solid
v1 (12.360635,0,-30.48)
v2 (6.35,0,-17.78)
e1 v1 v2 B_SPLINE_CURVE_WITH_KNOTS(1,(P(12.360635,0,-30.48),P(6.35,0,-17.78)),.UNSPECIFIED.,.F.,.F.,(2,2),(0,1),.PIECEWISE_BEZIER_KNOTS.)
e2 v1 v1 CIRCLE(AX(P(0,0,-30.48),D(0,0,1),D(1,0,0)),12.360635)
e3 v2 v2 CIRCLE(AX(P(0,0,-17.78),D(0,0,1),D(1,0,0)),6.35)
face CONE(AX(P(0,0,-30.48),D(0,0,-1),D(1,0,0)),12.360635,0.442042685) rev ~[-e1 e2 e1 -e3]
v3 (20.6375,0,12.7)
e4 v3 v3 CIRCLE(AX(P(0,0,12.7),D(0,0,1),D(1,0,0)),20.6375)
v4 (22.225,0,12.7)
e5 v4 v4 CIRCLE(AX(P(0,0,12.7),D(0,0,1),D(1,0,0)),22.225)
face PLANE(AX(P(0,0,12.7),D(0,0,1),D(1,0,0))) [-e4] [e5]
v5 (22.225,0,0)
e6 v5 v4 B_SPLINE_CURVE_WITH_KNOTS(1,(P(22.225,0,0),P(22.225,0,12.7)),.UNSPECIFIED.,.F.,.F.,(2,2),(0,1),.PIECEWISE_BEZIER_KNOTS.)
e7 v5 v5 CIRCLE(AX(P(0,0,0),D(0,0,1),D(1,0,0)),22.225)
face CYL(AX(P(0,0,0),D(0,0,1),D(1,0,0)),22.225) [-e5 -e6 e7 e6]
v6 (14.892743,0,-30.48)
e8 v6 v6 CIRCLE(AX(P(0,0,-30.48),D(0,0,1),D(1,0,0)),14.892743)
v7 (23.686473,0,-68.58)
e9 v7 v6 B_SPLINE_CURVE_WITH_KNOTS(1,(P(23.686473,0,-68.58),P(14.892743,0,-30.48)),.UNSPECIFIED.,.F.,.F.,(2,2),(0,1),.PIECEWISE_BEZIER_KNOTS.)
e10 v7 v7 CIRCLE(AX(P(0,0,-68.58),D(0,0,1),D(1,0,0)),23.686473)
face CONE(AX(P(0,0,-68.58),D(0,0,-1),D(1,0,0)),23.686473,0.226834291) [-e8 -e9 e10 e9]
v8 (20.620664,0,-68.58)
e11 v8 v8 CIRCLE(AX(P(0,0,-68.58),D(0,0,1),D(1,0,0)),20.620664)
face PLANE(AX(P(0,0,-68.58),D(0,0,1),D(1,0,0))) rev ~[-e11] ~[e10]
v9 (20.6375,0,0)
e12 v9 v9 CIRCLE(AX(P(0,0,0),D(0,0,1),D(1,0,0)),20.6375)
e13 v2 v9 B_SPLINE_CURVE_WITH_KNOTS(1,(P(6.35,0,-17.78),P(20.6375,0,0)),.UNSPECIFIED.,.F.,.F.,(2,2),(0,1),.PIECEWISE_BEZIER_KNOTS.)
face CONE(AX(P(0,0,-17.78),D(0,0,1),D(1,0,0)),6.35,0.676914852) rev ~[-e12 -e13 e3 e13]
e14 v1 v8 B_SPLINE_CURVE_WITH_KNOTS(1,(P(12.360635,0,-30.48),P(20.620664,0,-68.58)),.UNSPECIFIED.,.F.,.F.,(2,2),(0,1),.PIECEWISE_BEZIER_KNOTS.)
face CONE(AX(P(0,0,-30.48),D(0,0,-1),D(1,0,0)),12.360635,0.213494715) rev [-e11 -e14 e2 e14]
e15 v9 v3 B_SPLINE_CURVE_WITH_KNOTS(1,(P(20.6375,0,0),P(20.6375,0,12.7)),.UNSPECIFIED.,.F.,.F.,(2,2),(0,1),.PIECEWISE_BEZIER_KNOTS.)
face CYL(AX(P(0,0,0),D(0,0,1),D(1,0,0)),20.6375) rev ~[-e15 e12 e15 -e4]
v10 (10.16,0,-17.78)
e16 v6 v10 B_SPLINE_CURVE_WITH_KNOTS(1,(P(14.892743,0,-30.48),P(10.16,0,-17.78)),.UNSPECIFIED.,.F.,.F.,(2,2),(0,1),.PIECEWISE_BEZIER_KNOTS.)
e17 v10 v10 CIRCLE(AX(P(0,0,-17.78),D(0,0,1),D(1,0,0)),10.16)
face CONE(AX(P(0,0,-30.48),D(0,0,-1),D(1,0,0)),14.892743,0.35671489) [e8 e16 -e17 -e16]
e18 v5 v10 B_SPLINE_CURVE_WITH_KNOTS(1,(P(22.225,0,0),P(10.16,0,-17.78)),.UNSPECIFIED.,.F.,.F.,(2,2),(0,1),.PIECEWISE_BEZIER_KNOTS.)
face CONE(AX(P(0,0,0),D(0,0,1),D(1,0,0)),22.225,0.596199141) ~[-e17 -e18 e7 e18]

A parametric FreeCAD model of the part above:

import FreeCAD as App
import Part
import Sketcher
from FreeCAD import Vector
Q = App.Units.Quantity

doc = App.newDocument("Part")
params = doc.addObject("Spreadsheet::Sheet", "Params")
for row, (alias, value) in enumerate([
    ("sketch1_diameter", "1.75 in"),
    ("sketch2_diameter", "1.75 in"),
    ("sketch3_diameter", "1.625 in"),
    ("sketch4_diameter", "1.625 in"),
    ("sketch5_diameter", "1.75 in"),
    ("sketch6_diameter", "0.8 in"),
    ("sketch7_diameter", "0.5 in"),
    ("sketch8_diameter", "1.625 in"),
    ("sketch10_diameter", "0.8 in"),
    ("sketch12_diameter", "0.5 in"),
], start=1):
    params.set(f"A{row}", alias)
    params.set(f"B{row}", "=" + value)
    params.setAlias(f"B{row}", alias)

body = doc.addObject("PartDesign::Body", "Body")

# Sketch on XY plane
sketch1 = doc.addObject("Sketcher::SketchObject", "Sketch")
body.addObject(sketch1)
sketch1.AttachmentSupport = (doc.XY_Plane, [""])
sketch1.MapMode = "FlatFace"
sketch1.addGeometry(Part.Circle(Vector(0, 0, 0), Vector(0, 0, 1), 22), False)
sketch1.addConstraint([
    Sketcher.Constraint("Coincident", 0, 3, -1, 1),
    Sketcher.Constraint("Diameter", 0, Q("1.75 in")),
])
sketch1.setExpression("Constraints[1]", "Params.sketch1_diameter")

# Sketch on XY plane
sketch2 = doc.addObject("Sketcher::SketchObject", "Sketch001")
body.addObject(sketch2)
sketch2.AttachmentSupport = (doc.XY_Plane, [""])
sketch2.MapMode = "FlatFace"
sketch2.AttachmentOffset = App.Placement(Vector(0, 0, 0.5 * 25.4), App.Rotation())
sketch2.addGeometry(Part.Circle(Vector(0, 0, 0), Vector(0, 0, 1), 22), False)
sketch2.addConstraint([
    Sketcher.Constraint("Coincident", 0, 3, -1, 1),
    Sketcher.Constraint("Diameter", 0, Q("1.75 in")),
])
sketch2.setExpression("Constraints[1]", "Params.sketch2_diameter")

additiveloft = doc.addObject("PartDesign::AdditiveLoft", "AdditiveLoft")
body.addObject(additiveloft)
additiveloft.Profile = sketch1
additiveloft.Sections = [sketch2]

# Sketch on XY plane
sketch3 = doc.addObject("Sketcher::SketchObject", "Sketch002")
body.addObject(sketch3)
sketch3.AttachmentSupport = (doc.XY_Plane, [""])
sketch3.MapMode = "FlatFace"
sketch3.addGeometry(Part.Circle(Vector(0, 0, 0), Vector(0, 0, 1), 21), False)
sketch3.addConstraint([
    Sketcher.Constraint("Coincident", 0, 3, -1, 1),
    Sketcher.Constraint("Diameter", 0, Q("1.625 in")),
])
sketch3.setExpression("Constraints[1]", "Params.sketch3_diameter")

# Sketch on XY plane
sketch4 = doc.addObject("Sketcher::SketchObject", "Sketch003")
body.addObject(sketch4)
sketch4.AttachmentSupport = (doc.XY_Plane, [""])
sketch4.MapMode = "FlatFace"
sketch4.AttachmentOffset = App.Placement(Vector(0, 0, 0.5 * 25.4), App.Rotation())
sketch4.addGeometry(Part.Circle(Vector(0, 0, 0), Vector(0, 0, 1), 21), False)
sketch4.addConstraint([
    Sketcher.Constraint("Coincident", 0, 3, -1, 1),
    Sketcher.Constraint("Diameter", 0, Q("1.625 in")),
])
sketch4.setExpression("Constraints[1]", "Params.sketch4_diameter")

subtractiveloft = doc.addObject("PartDesign::SubtractiveLoft", "SubtractiveLoft")
body.addObject(subtractiveloft)
subtractiveloft.Profile = sketch3
subtractiveloft.Sections = [sketch4]

# Sketch on XY plane
sketch5 = doc.addObject("Sketcher::SketchObject", "Sketch004")
body.addObject(sketch5)
sketch5.AttachmentSupport = (doc.XY_Plane, [""])
sketch5.MapMode = "FlatFace"
sketch5.addGeometry(Part.Circle(Vector(0, 0, 0), Vector(0, 0, 1), 22), False)
sketch5.addConstraint([
    Sketcher.Constraint("Coincident", 0, 3, -1, 1),
    Sketcher.Constraint("Diameter", 0, Q("1.75 in")),
])
sketch5.setExpression("Constraints[1]", "Params.sketch5_diameter")

# Sketch on XY plane
sketch6 = doc.addObject("Sketcher::SketchObject", "Sketch005")
body.addObject(sketch6)
sketch6.AttachmentSupport = (doc.XY_Plane, [""])
sketch6.MapMode = "FlatFace"
sketch6.AttachmentOffset = App.Placement(Vector(0, 0, -0.7 * 25.4), App.Rotation())
sketch6.addGeometry(Part.Circle(Vector(0, 0, 0), Vector(0, 0, 1), 10), False)
sketch6.addConstraint([
    Sketcher.Constraint("Coincident", 0, 3, -1, 1),
    Sketcher.Constraint("Diameter", 0, Q("0.8 in")),
])
sketch6.setExpression("Constraints[1]", "Params.sketch6_diameter")

additiveloft2 = doc.addObject("PartDesign::AdditiveLoft", "AdditiveLoft001")
body.addObject(additiveloft2)
additiveloft2.Profile = sketch5
additiveloft2.Sections = [sketch6]

# Sketch on XY plane
sketch7 = doc.addObject("Sketcher::SketchObject", "Sketch006")
body.addObject(sketch7)
sketch7.AttachmentSupport = (doc.XY_Plane, [""])
sketch7.MapMode = "FlatFace"
sketch7.AttachmentOffset = App.Placement(Vector(0, 0, -0.7 * 25.4), App.Rotation())
sketch7.addGeometry(Part.Circle(Vector(0, 0, 0), Vector(0, 0, 1), 6), False)
sketch7.addConstraint([
    Sketcher.Constraint("Coincident", 0, 3, -1, 1),
    Sketcher.Constraint("Diameter", 0, Q("0.5 in")),
])
sketch7.setExpression("Constraints[1]", "Params.sketch7_diameter")

# Sketch on XY plane
sketch8 = doc.addObject("Sketcher::SketchObject", "Sketch007")
body.addObject(sketch8)
sketch8.AttachmentSupport = (doc.XY_Plane, [""])
sketch8.MapMode = "FlatFace"
sketch8.addGeometry(Part.Circle(Vector(0, 0, 0), Vector(0, 0, 1), 21), False)
sketch8.addConstraint([
    Sketcher.Constraint("Coincident", 0, 3, -1, 1),
    Sketcher.Constraint("Diameter", 0, Q("1.625 in")),
])
sketch8.setExpression("Constraints[1]", "Params.sketch8_diameter")

subtractiveloft2 = doc.addObject("PartDesign::SubtractiveLoft", "SubtractiveLoft001")
body.addObject(subtractiveloft2)
subtractiveloft2.Profile = sketch7
subtractiveloft2.Sections = [sketch8]

# Sketch on XY plane
sketch9 = doc.addObject("Sketcher::SketchObject", "Sketch008")
body.addObject(sketch9)
sketch9.AttachmentSupport = (doc.XY_Plane, [""])
sketch9.MapMode = "FlatFace"
sketch9.AttachmentOffset = App.Placement(Vector(0, 0, -1.2 * 25.4), App.Rotation())
sketch9.addGeometry(Part.Circle(Vector(0, 0, 0), Vector(0, 0, 1), 15), False)
sketch9.addConstraint([
    Sketcher.Constraint("Coincident", 0, 3, -1, 1),
    Sketcher.Constraint("Diameter", 0, Q("29.785486 mm")),
])

# Sketch on XY plane
sketch10 = doc.addObject("Sketcher::SketchObject", "Sketch009")
body.addObject(sketch10)
sketch10.AttachmentSupport = (doc.XY_Plane, [""])
sketch10.MapMode = "FlatFace"
sketch10.AttachmentOffset = App.Placement(Vector(0, 0, -0.7 * 25.4), App.Rotation())
sketch10.addGeometry(Part.Circle(Vector(0, 0, 0), Vector(0, 0, 1), 10), False)
sketch10.addConstraint([
    Sketcher.Constraint("Coincident", 0, 3, -1, 1),
    Sketcher.Constraint("Diameter", 0, Q("0.8 in")),
])
sketch10.setExpression("Constraints[1]", "Params.sketch10_diameter")

additiveloft3 = doc.addObject("PartDesign::AdditiveLoft", "AdditiveLoft002")
body.addObject(additiveloft3)
additiveloft3.Profile = sketch9
additiveloft3.Sections = [sketch10]

# Sketch on XY plane
sketch11 = doc.addObject("Sketcher::SketchObject", "Sketch010")
body.addObject(sketch11)
sketch11.AttachmentSupport = (doc.XY_Plane, [""])
sketch11.MapMode = "FlatFace"
sketch11.AttachmentOffset = App.Placement(Vector(0, 0, -1.2 * 25.4), App.Rotation())
sketch11.addGeometry(Part.Circle(Vector(0, 0, 0), Vector(0, 0, 1), 12), False)
sketch11.addConstraint([
    Sketcher.Constraint("Coincident", 0, 3, -1, 1),
    Sketcher.Constraint("Diameter", 0, Q("24.72127 mm")),
])

# Sketch on XY plane
sketch12 = doc.addObject("Sketcher::SketchObject", "Sketch011")
body.addObject(sketch12)
sketch12.AttachmentSupport = (doc.XY_Plane, [""])
sketch12.MapMode = "FlatFace"
sketch12.AttachmentOffset = App.Placement(Vector(0, 0, -0.7 * 25.4), App.Rotation())
sketch12.addGeometry(Part.Circle(Vector(0, 0, 0), Vector(0, 0, 1), 6), False)
sketch12.addConstraint([
    Sketcher.Constraint("Coincident", 0, 3, -1, 1),
    Sketcher.Constraint("Diameter", 0, Q("0.5 in")),
])
sketch12.setExpression("Constraints[1]", "Params.sketch12_diameter")

subtractiveloft3 = doc.addObject("PartDesign::SubtractiveLoft", "SubtractiveLoft002")
body.addObject(subtractiveloft3)
subtractiveloft3.Profile = sketch11
subtractiveloft3.Sections = [sketch12]

# Sketch on XY plane
sketch13 = doc.addObject("Sketcher::SketchObject", "Sketch012")
body.addObject(sketch13)
sketch13.AttachmentSupport = (doc.XY_Plane, [""])
sketch13.MapMode = "FlatFace"
sketch13.AttachmentOffset = App.Placement(Vector(0, 0, -2.7 * 25.4), App.Rotation())
sketch13.addGeometry(Part.Circle(Vector(0, 0, 0), Vector(0, 0, 1), 24), False)
sketch13.addConstraint([
    Sketcher.Constraint("Coincident", 0, 3, -1, 1),
    Sketcher.Constraint("Diameter", 0, Q("47.372946 mm")),
])

# Sketch on XY plane
sketch14 = doc.addObject("Sketcher::SketchObject", "Sketch013")
body.addObject(sketch14)
sketch14.AttachmentSupport = (doc.XY_Plane, [""])
sketch14.MapMode = "FlatFace"
sketch14.AttachmentOffset = App.Placement(Vector(0, 0, -1.2 * 25.4), App.Rotation())
sketch14.addGeometry(Part.Circle(Vector(0, 0, 0), Vector(0, 0, 1), 15), False)
sketch14.addConstraint([
    Sketcher.Constraint("Coincident", 0, 3, -1, 1),
    Sketcher.Constraint("Diameter", 0, Q("29.785486 mm")),
])

additiveloft4 = doc.addObject("PartDesign::AdditiveLoft", "AdditiveLoft003")
body.addObject(additiveloft4)
additiveloft4.Profile = sketch13
additiveloft4.Sections = [sketch14]

# Sketch on XY plane
sketch15 = doc.addObject("Sketcher::SketchObject", "Sketch014")
body.addObject(sketch15)
sketch15.AttachmentSupport = (doc.XY_Plane, [""])
sketch15.MapMode = "FlatFace"
sketch15.AttachmentOffset = App.Placement(Vector(0, 0, -1.2 * 25.4), App.Rotation())
sketch15.addGeometry(Part.Circle(Vector(0, 0, 0), Vector(0, 0, 1), 12), False)
sketch15.addConstraint([
    Sketcher.Constraint("Coincident", 0, 3, -1, 1),
    Sketcher.Constraint("Diameter", 0, Q("24.72127 mm")),
])

# Sketch on XY plane
sketch16 = doc.addObject("Sketcher::SketchObject", "Sketch015")
body.addObject(sketch16)
sketch16.AttachmentSupport = (doc.XY_Plane, [""])
sketch16.MapMode = "FlatFace"
sketch16.AttachmentOffset = App.Placement(Vector(0, 0, -2.7 * 25.4), App.Rotation())
sketch16.addGeometry(Part.Circle(Vector(0, 0, 0), Vector(0, 0, 1), 21), False)
sketch16.addConstraint([
    Sketcher.Constraint("Coincident", 0, 3, -1, 1),
    Sketcher.Constraint("Diameter", 0, Q("41.241328 mm")),
])

subtractiveloft4 = doc.addObject("PartDesign::SubtractiveLoft", "SubtractiveLoft003")
body.addObject(subtractiveloft4)
subtractiveloft4.Profile = sketch15
subtractiveloft4.Sections = [sketch16]

doc.recompute()
